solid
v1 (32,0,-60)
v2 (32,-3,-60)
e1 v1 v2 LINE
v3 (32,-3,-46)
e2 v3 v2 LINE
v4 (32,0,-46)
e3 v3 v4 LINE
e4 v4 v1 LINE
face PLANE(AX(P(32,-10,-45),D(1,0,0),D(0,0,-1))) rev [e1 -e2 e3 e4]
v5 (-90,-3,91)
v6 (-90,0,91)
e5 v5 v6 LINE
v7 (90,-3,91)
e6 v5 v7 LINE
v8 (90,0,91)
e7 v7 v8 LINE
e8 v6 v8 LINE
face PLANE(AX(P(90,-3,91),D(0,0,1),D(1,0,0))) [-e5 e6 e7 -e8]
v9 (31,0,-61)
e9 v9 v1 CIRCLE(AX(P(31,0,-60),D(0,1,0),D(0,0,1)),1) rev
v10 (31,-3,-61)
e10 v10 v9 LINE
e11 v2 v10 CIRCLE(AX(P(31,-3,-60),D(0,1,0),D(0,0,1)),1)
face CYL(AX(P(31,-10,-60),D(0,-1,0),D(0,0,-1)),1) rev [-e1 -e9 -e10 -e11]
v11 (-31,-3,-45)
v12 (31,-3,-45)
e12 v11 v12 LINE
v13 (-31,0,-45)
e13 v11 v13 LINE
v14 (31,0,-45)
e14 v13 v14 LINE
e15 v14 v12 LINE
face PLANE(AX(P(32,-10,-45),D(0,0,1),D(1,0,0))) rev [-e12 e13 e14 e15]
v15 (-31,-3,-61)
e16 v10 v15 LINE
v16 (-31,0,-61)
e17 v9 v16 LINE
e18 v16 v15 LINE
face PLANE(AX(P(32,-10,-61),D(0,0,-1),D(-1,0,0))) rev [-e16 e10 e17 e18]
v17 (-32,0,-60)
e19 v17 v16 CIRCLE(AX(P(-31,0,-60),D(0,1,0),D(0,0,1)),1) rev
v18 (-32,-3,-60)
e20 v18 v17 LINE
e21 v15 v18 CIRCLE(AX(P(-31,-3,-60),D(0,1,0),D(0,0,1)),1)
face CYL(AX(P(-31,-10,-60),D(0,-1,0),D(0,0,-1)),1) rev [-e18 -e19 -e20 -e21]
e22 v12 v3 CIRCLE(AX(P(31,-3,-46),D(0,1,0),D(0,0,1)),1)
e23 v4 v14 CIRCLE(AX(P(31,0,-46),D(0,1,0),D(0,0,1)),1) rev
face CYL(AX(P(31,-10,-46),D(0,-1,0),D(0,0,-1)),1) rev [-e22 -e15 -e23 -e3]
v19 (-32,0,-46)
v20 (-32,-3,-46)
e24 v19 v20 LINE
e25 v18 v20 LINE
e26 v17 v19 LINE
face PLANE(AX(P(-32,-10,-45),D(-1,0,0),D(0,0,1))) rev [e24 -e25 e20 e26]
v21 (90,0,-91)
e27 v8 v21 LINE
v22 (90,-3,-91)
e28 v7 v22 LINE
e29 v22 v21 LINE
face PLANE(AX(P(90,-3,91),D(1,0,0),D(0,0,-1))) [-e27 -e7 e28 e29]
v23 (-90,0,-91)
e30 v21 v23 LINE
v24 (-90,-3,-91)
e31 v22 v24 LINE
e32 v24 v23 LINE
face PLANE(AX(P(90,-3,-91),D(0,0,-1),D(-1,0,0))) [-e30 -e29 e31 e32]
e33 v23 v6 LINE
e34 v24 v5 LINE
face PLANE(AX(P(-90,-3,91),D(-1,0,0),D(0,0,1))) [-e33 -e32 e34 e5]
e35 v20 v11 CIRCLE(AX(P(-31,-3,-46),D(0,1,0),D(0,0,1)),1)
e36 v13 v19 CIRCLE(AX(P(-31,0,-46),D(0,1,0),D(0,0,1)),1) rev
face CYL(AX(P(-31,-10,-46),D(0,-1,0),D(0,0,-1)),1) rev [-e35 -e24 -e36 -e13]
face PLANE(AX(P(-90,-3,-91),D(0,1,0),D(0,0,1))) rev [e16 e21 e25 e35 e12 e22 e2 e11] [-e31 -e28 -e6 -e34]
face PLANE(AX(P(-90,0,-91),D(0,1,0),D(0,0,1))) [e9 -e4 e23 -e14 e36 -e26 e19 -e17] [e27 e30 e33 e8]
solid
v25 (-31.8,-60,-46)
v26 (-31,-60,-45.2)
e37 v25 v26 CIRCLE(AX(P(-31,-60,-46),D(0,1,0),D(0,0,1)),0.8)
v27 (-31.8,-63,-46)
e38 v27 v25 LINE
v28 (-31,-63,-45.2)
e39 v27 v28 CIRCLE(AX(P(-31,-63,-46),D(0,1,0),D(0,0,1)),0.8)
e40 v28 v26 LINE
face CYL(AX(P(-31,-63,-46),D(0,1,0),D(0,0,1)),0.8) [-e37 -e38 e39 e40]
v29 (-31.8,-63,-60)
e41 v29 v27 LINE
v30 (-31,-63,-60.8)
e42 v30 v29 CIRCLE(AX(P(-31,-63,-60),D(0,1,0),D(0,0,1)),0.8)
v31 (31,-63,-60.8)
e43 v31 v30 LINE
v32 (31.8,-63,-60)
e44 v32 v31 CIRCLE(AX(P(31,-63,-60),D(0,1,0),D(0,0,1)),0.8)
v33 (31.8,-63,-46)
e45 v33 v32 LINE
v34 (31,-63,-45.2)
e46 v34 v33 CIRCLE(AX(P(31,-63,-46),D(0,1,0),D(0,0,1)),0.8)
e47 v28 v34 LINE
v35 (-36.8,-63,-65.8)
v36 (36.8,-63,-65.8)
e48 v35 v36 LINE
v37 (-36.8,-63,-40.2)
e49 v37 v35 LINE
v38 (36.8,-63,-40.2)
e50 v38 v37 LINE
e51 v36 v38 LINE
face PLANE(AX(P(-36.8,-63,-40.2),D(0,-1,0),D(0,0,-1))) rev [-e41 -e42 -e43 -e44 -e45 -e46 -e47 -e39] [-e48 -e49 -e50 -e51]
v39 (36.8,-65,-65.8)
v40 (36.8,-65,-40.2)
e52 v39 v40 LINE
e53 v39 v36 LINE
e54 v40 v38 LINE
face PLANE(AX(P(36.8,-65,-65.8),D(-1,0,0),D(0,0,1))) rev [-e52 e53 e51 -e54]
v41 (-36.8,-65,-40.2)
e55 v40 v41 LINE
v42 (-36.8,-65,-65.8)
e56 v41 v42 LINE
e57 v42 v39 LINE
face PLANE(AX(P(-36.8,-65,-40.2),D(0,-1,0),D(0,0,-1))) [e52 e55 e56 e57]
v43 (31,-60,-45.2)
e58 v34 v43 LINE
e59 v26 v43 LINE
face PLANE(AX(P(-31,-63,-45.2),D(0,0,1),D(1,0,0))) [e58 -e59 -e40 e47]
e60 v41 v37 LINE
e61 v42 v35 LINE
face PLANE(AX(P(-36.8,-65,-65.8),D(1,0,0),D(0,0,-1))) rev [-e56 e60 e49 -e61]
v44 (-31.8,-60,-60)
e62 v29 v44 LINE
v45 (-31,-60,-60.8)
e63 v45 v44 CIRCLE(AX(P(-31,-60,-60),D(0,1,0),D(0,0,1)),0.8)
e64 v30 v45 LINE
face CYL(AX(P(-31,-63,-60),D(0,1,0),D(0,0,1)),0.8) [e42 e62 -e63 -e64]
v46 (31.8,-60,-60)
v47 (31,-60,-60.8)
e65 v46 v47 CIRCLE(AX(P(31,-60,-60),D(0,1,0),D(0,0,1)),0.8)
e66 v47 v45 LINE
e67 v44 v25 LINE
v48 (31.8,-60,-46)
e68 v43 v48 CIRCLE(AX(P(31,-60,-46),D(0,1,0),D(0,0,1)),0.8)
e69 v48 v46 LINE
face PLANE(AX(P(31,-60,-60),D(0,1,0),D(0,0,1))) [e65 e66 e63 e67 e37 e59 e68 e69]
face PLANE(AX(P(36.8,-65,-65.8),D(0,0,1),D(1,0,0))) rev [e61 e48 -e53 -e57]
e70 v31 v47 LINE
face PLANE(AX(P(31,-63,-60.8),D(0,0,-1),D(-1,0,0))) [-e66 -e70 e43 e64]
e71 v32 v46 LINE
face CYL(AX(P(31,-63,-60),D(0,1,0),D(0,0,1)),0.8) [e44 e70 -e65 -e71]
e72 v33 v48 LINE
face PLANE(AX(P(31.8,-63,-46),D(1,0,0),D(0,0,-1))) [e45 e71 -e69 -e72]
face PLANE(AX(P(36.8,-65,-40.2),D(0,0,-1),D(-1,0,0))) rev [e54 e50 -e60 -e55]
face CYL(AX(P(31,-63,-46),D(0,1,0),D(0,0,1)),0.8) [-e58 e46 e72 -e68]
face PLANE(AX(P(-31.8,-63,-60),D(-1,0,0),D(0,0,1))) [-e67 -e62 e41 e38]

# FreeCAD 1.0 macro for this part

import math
import FreeCAD as App
import Part
import Sketcher
from FreeCAD import Vector
Q = App.Units.Quantity


def edges_at(feature, points):
    """Names of the edges that pass closest to the given points."""
    edges = feature.Shape.Edges
    near = lambda p: min(range(len(edges)), key=lambda i: edges[i].distToShape(Part.Vertex(*p))[0])
    return sorted({f"Edge{near(p) + 1}" for p in points})

doc = App.newDocument("Part")
params = doc.addObject("Spreadsheet::Sheet", "Params")
for row, (alias, value) in enumerate([
    ("sketch1_width", "180 mm"),
    ("sketch1_height", "182 mm"),
    ("pad1_length", "3 mm"),
    ("sketch2_width", "64 mm"),
    ("sketch2_height", "16 mm"),
    ("pocket1_length", "10 mm"),
    ("fillet_radius", "1 mm"),
    ("sketch3_radius", "0.8 mm"),
    ("sketch3_width", "62 mm"),
    ("sketch3_height", "14 mm"),
    ("pad2_length", "3 mm"),
    ("sketch4_width", "73.6 mm"),
    ("sketch4_height", "25.6 mm"),
    ("pad3_length", "2 mm"),
], start=1):
    params.set(f"A{row}", alias)
    params.set(f"B{row}", "=" + value)
    params.setAlias(f"B{row}", alias)

body = doc.addObject("PartDesign::Body", "Body")

# Sketch on XZ plane
sketch1 = body.newObject("Sketcher::SketchObject", "Sketch")
sketch1.AttachmentSupport = (doc.getObject("XZ_Plane"), [""])
sketch1.MapMode = "FlatFace"
sketch1.addGeometry(Part.LineSegment(Vector(-90, -91, 0), Vector(-90, 91, 0)), False)
sketch1.addGeometry(Part.LineSegment(Vector(-90, 91, 0), Vector(90, 91, 0)), False)
sketch1.addGeometry(Part.LineSegment(Vector(90, 91, 0), Vector(90, -91, 0)), False)
sketch1.addGeometry(Part.LineSegment(Vector(90, -91, 0), Vector(-90, -91, 0)), False)
sketch1.addConstraint(Sketcher.Constraint("Coincident", 0, 2, 1, 1))
sketch1.addConstraint(Sketcher.Constraint("Coincident", 1, 2, 2, 1))
sketch1.addConstraint(Sketcher.Constraint("Coincident", 2, 2, 3, 1))
sketch1.addConstraint(Sketcher.Constraint("Coincident", 3, 2, 0, 1))
sketch1.addConstraint(Sketcher.Constraint("Vertical", 0))
sketch1.addConstraint(Sketcher.Constraint("Horizontal", 1))
sketch1.addConstraint(Sketcher.Constraint("Vertical", 2))
sketch1.addConstraint(Sketcher.Constraint("Horizontal", 3))
sketch1.addConstraint(Sketcher.Constraint("Symmetric", 0, 2, 2, 2, -1, 1))
sketch1.addConstraint(Sketcher.Constraint("DistanceX", 1, 1, 1, 2, Q("180 mm")))
sketch1.addConstraint(Sketcher.Constraint("DistanceY", 0, 1, 0, 2, Q("182 mm")))
sketch1.setExpression("Constraints[9]", "Params.sketch1_width")
sketch1.setExpression("Constraints[10]", "Params.sketch1_height")
pad1 = body.newObject("PartDesign::Pad", "Pad")
pad1.Profile = sketch1
pad1.setExpression("Length", "Params.pad1_length")

# Sketch on XZ plane
sketch2 = body.newObject("Sketcher::SketchObject", "Sketch001")
sketch2.AttachmentSupport = (doc.getObject("XZ_Plane"), [""])
sketch2.MapMode = "FlatFace"
sketch2.addGeometry(Part.LineSegment(Vector(-32, -61, 0), Vector(-32, -45, 0)), False)
sketch2.addGeometry(Part.LineSegment(Vector(-32, -45, 0), Vector(32, -45, 0)), False)
sketch2.addGeometry(Part.LineSegment(Vector(32, -45, 0), Vector(32, -61, 0)), False)
sketch2.addGeometry(Part.LineSegment(Vector(32, -61, 0), Vector(-32, -61, 0)), False)
sketch2.addConstraint(Sketcher.Constraint("Coincident", 0, 2, 1, 1))
sketch2.addConstraint(Sketcher.Constraint("Coincident", 1, 2, 2, 1))
sketch2.addConstraint(Sketcher.Constraint("Coincident", 2, 2, 3, 1))
sketch2.addConstraint(Sketcher.Constraint("Coincident", 3, 2, 0, 1))
sketch2.addConstraint(Sketcher.Constraint("Vertical", 0))
sketch2.addConstraint(Sketcher.Constraint("Horizontal", 1))
sketch2.addConstraint(Sketcher.Constraint("Vertical", 2))
sketch2.addConstraint(Sketcher.Constraint("Horizontal", 3))
sketch2.addConstraint(Sketcher.Constraint("DistanceX", 1, 1, 1, 2, Q("64 mm")))
sketch2.addConstraint(Sketcher.Constraint("DistanceY", 0, 1, 0, 2, Q("16 mm")))
sketch2.addConstraint(Sketcher.Constraint("DistanceX", 0, 2, -1, 1, Q("32 mm")))
sketch2.addConstraint(Sketcher.Constraint("DistanceY", 0, 2, -1, 1, Q("45 mm")))
sketch2.setExpression("Constraints[8]", "Params.sketch2_width")
sketch2.setExpression("Constraints[9]", "Params.sketch2_height")
pocket1 = body.newObject("PartDesign::Pocket", "Pocket")
pocket1.Profile = sketch2
pocket1.setExpression("Length", "Params.pocket1_length")
pocket1.Reversed = True
doc.recompute()

fillet = body.newObject("PartDesign::Fillet", "Fillet")
fillet.Base = (pocket1, edges_at(pocket1, [
    (-32, -1.5, -45),
    (-32, -1.5, -61),
    (32, -1.5, -61),
    (32, -1.5, -45),
]))
fillet.setExpression("Radius", "Params.fillet_radius")
body2 = doc.addObject("PartDesign::Body", "Body001")

# Sketch on XZ plane
sketch3 = body2.newObject("Sketcher::SketchObject", "Sketch002")
sketch3.AttachmentSupport = (doc.getObject("XZ_Plane001"), [""])
sketch3.MapMode = "FlatFace"
sketch3.addGeometry(Part.LineSegment(Vector(31.8, -46, 0), Vector(31.8, -60, 0)), False)
sketch3.addGeometry(Part.ArcOfCircle(Part.Circle(Vector(31, -60, 0), Vector(0, 0, 1), 0.8), math.radians(-90), math.radians(0)), False)
sketch3.addGeometry(Part.LineSegment(Vector(31, -60.8, 0), Vector(-31, -60.8, 0)), False)
sketch3.addGeometry(Part.ArcOfCircle(Part.Circle(Vector(-31, -60, 0), Vector(0, 0, 1), 0.8), math.radians(180), math.radians(270)), False)
sketch3.addGeometry(Part.LineSegment(Vector(-31.8, -60, 0), Vector(-31.8, -46, 0)), False)
sketch3.addGeometry(Part.ArcOfCircle(Part.Circle(Vector(-31, -46, 0), Vector(0, 0, 1), 0.8), math.radians(90), math.radians(180)), False)
sketch3.addGeometry(Part.LineSegment(Vector(-31, -45.2, 0), Vector(31, -45.2, 0)), False)
sketch3.addGeometry(Part.ArcOfCircle(Part.Circle(Vector(31, -46, 0), Vector(0, 0, 1), 0.8), math.radians(0), math.radians(90)), False)
sketch3.addConstraint(Sketcher.Constraint("Tangent", 0, 2, 1, 2))
sketch3.addConstraint(Sketcher.Constraint("Tangent", 1, 1, 2, 1))
sketch3.addConstraint(Sketcher.Constraint("Tangent", 2, 2, 3, 2))
sketch3.addConstraint(Sketcher.Constraint("Tangent", 3, 1, 4, 1))
sketch3.addConstraint(Sketcher.Constraint("Tangent", 4, 2, 5, 2))
sketch3.addConstraint(Sketcher.Constraint("Tangent", 5, 1, 6, 1))
sketch3.addConstraint(Sketcher.Constraint("Tangent", 6, 2, 7, 2))
sketch3.addConstraint(Sketcher.Constraint("Tangent", 7, 1, 0, 1))
sketch3.addConstraint(Sketcher.Constraint("Vertical", 0))
sketch3.addConstraint(Sketcher.Constraint("Horizontal", 2))
sketch3.addConstraint(Sketcher.Constraint("Vertical", 4))
sketch3.addConstraint(Sketcher.Constraint("Horizontal", 6))
sketch3.addConstraint(Sketcher.Constraint("Equal", 1, 3))
sketch3.addConstraint(Sketcher.Constraint("Equal", 3, 5))
sketch3.addConstraint(Sketcher.Constraint("Equal", 5, 7))
sketch3.addConstraint(Sketcher.Constraint("Radius", 1, Q("0.8 mm")))
sketch3.addConstraint(Sketcher.Constraint("DistanceX", 2, 2, 2, 1, Q("62 mm")))
sketch3.addConstraint(Sketcher.Constraint("DistanceY", 0, 2, 0, 1, Q("14 mm")))
sketch3.addConstraint(Sketcher.Constraint("DistanceX", -1, 1, 1, 3, Q("31 mm")))
sketch3.addConstraint(Sketcher.Constraint("DistanceY", 1, 3, -1, 1, Q("60 mm")))
sketch3.setExpression("Constraints[15]", "Params.sketch3_radius")
sketch3.setExpression("Constraints[16]", "Params.sketch3_width")
sketch3.setExpression("Constraints[17]", "Params.sketch3_height")
pad2 = body2.newObject("PartDesign::Pad", "Pad001")
pad2.Profile = sketch3
pad2.setExpression("Length", "Params.pad2_length")

# Sketch on XZ plane
sketch4 = body2.newObject("Sketcher::SketchObject", "Sketch003")
sketch4.AttachmentSupport = (doc.getObject("XZ_Plane001"), [""])
sketch4.MapMode = "FlatFace"
sketch4.AttachmentOffset = App.Placement(Vector(0, 0, 3), App.Rotation())
sketch4.addGeometry(Part.LineSegment(Vector(-37, -40, 0), Vector(-37, -66, 0)), False)
sketch4.addGeometry(Part.LineSegment(Vector(-37, -66, 0), Vector(37, -66, 0)), False)
sketch4.addGeometry(Part.LineSegment(Vector(37, -66, 0), Vector(37, -40, 0)), False)
sketch4.addGeometry(Part.LineSegment(Vector(37, -40, 0), Vector(-37, -40, 0)), False)
sketch4.addConstraint(Sketcher.Constraint("Coincident", 0, 2, 1, 1))
sketch4.addConstraint(Sketcher.Constraint("Coincident", 1, 2, 2, 1))
sketch4.addConstraint(Sketcher.Constraint("Coincident", 2, 2, 3, 1))
sketch4.addConstraint(Sketcher.Constraint("Coincident", 3, 2, 0, 1))
sketch4.addConstraint(Sketcher.Constraint("Vertical", 0))
sketch4.addConstraint(Sketcher.Constraint("Horizontal", 1))
sketch4.addConstraint(Sketcher.Constraint("Vertical", 2))
sketch4.addConstraint(Sketcher.Constraint("Horizontal", 3))
sketch4.addConstraint(Sketcher.Constraint("DistanceX", 1, 1, 1, 2, Q("73.6 mm")))
sketch4.addConstraint(Sketcher.Constraint("DistanceY", 0, 2, 0, 1, Q("25.6 mm")))
sketch4.addConstraint(Sketcher.Constraint("DistanceX", 0, 2, -1, 1, Q("36.8 mm")))
sketch4.addConstraint(Sketcher.Constraint("DistanceY", 0, 2, -1, 1, Q("65.8 mm")))
sketch4.setExpression("Constraints[8]", "Params.sketch4_width")
sketch4.setExpression("Constraints[9]", "Params.sketch4_height")
pad3 = body2.newObject("PartDesign::Pad", "Pad002")
pad3.Profile = sketch4
pad3.setExpression("Length", "Params.pad3_length")
body3 = doc.addObject("PartDesign::Body", "Body002")
doc.recompute()

body2.Placement = App.Placement(Vector(0, -60, 0), App.Rotation(Vector(0, 0, 1), 0))
boolean = body3.newObject("PartDesign::Boolean", "Boolean")
boolean.Type = "Fuse"
boolean.addObjects([body2])

doc.recompute()
